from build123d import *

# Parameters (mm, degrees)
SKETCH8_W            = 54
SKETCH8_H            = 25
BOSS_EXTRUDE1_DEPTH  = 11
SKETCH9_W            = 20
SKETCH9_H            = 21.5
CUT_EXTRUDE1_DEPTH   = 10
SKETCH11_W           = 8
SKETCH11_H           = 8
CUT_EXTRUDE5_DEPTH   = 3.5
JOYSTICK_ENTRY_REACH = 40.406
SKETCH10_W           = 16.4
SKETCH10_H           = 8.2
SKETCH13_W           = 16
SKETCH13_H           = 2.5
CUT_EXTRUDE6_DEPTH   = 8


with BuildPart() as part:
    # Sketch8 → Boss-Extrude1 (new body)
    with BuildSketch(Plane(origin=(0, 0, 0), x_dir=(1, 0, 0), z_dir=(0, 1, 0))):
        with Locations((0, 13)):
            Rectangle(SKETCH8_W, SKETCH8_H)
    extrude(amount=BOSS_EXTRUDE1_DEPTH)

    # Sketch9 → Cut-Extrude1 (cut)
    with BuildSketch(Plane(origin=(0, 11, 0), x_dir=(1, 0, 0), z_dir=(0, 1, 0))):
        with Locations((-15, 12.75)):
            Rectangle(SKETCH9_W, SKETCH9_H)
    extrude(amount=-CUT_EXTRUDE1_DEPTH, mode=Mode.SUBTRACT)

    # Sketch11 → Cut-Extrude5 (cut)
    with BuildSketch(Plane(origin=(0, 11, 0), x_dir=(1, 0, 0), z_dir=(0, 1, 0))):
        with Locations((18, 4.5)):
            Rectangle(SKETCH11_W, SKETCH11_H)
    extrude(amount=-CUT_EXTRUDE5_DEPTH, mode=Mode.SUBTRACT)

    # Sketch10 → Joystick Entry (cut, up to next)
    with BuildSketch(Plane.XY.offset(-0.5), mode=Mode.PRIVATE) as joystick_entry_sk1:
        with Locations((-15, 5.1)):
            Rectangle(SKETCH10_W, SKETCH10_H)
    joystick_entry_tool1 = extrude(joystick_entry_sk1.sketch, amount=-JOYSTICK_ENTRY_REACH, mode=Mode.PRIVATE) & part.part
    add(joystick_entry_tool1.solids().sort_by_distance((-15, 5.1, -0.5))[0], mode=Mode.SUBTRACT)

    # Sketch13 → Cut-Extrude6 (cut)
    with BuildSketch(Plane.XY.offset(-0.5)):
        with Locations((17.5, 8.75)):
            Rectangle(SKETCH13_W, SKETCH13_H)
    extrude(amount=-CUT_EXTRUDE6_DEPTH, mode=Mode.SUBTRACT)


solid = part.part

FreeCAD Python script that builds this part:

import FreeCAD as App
import Part
import Sketcher
from FreeCAD import Vector


def add_polygon(sketch, points):
    """Adds a closed chain of lines whose ends are joined by coincident constraints."""
    first, n = sketch.GeometryCount, len(points)
    for a, b in zip(points, points[1:] + points[:1]):
        sketch.addGeometry(Part.LineSegment(App.Vector(*a, 0), App.Vector(*b, 0)), False)
    for i in range(n):
        sketch.addConstraint(Sketcher.Constraint("Coincident", first + i, 2, first + (i + 1) % n, 1))

doc = App.newDocument("Part")
body = doc.addObject("PartDesign::Body", "Body")

# Sketch on XZ plane
sketch1 = body.newObject("Sketcher::SketchObject", "Sketch")
sketch1.AttachmentSupport = (doc.getObject("XZ_Plane"), [""])
sketch1.MapMode = "FlatFace"
add_polygon(sketch1, [(-27, -26), (-27, 0), (27, 0), (27, -26)])  # lines 0-3
sketch1.addConstraint([
    Sketcher.Constraint("Vertical", 0),
    Sketcher.Constraint("Horizontal", 1),
    Sketcher.Constraint("Vertical", 2),
    Sketcher.Constraint("Horizontal", 3),
    Sketcher.Constraint("DistanceX", 1, 1, 1, 2, 54.0),
    Sketcher.Constraint("DistanceY", 0, 1, 0, 2, 25.0),
    Sketcher.Constraint("DistanceX", 0, 2, -1, 1, 27.0),
    Sketcher.Constraint("DistanceY", 0, 2, -1, 1, 0.5),
])
pad1 = body.newObject("PartDesign::Pad", "Pad")
pad1.Profile = sketch1
pad1.Length = 11
pad1.Reversed = True

# Sketch on XZ plane
sketch2 = body.newObject("Sketcher::SketchObject", "Sketch001")
sketch2.AttachmentSupport = (doc.getObject("XZ_Plane"), [""])
sketch2.MapMode = "FlatFace"
sketch2.AttachmentOffset = App.Placement(Vector(0, 0, -11), App.Rotation())
add_polygon(sketch2, [(-25, -24), (-25, -2), (-5, -2), (-5, -24)])  # lines 0-3
sketch2.addConstraint([
    Sketcher.Constraint("Vertical", 0),
    Sketcher.Constraint("Horizontal", 1),
    Sketcher.Constraint("Vertical", 2),
    Sketcher.Constraint("Horizontal", 3),
    Sketcher.Constraint("DistanceX", 1, 1, 1, 2, 20.0),
    Sketcher.Constraint("DistanceY", 0, 1, 0, 2, 21.5),
    Sketcher.Constraint("DistanceX", 0, 2, -1, 1, 25.0),
    Sketcher.Constraint("DistanceY", 0, 2, -1, 1, 2.0),
])
pocket1 = body.newObject("PartDesign::Pocket", "Pocket")
pocket1.Profile = sketch2
pocket1.Length = 10
pocket1.Reversed = True

# Sketch on XZ plane
sketch3 = body.newObject("Sketcher::SketchObject", "Sketch002")
sketch3.AttachmentSupport = (doc.getObject("XZ_Plane"), [""])
sketch3.MapMode = "FlatFace"
sketch3.AttachmentOffset = App.Placement(Vector(0, 0, -11), App.Rotation())
add_polygon(sketch3, [(14, -8), (14, 0), (22, 0), (22, -8)])  # lines 0-3
sketch3.addConstraint([
    Sketcher.Constraint("Vertical", 0),
    Sketcher.Constraint("Horizontal", 1),
    Sketcher.Constraint("Vertical", 2),
    Sketcher.Constraint("Horizontal", 3),
    Sketcher.Constraint("Equal", 3, 0),
    Sketcher.Constraint("DistanceX", 1, 1, 1, 2, 8.0),
    Sketcher.Constraint("DistanceX", -1, 1, 0, 2, 14.0),
    Sketcher.Constraint("DistanceY", 0, 2, -1, 1, 0.5),
])
pocket2 = body.newObject("PartDesign::Pocket", "Pocket001")
pocket2.Profile = sketch3
pocket2.Length = 3.5
pocket2.Reversed = True

# Sketch on XY plane
sketch4 = body.newObject("Sketcher::SketchObject", "Sketch003")
sketch4.AttachmentSupport = (doc.getObject("XY_Plane"), [""])
sketch4.MapMode = "FlatFace"
sketch4.AttachmentOffset = App.Placement(Vector(0, 0, -0.5), App.Rotation())
add_polygon(sketch4, [(-23, 9), (-23, 1), (-7, 1), (-7, 9)])  # lines 0-3
sketch4.addConstraint([
    Sketcher.Constraint("Vertical", 0),
    Sketcher.Constraint("Horizontal", 1),
    Sketcher.Constraint("Vertical", 2),
    Sketcher.Constraint("Horizontal", 3),
    Sketcher.Constraint("DistanceX", 1, 1, 1, 2, 16.4),
    Sketcher.Constraint("DistanceY", 0, 2, 0, 1, 8.2),
    Sketcher.Constraint("DistanceY", -1, 1, 0, 2, 1.0),
    Sketcher.Constraint("DistanceX", 0, 2, -1, 1, 23.2),
])
pocket3 = body.newObject("PartDesign::Pocket", "Pocket002")
pocket3.Profile = sketch4
pocket3.Type = "UpToFirst"

# Sketch on XY plane
sketch5 = body.newObject("Sketcher::SketchObject", "Sketch004")
sketch5.AttachmentSupport = (doc.getObject("XY_Plane"), [""])
sketch5.MapMode = "FlatFace"
sketch5.AttachmentOffset = App.Placement(Vector(0, 0, -0.5), App.Rotation())
add_polygon(sketch5, [(9.5, 10), (9.5, 7.5), (25.5, 7.5), (25.5, 10)])  # lines 0-3
sketch5.addConstraint([
    Sketcher.Constraint("Vertical", 0),
    Sketcher.Constraint("Horizontal", 1),
    Sketcher.Constraint("Vertical", 2),
    Sketcher.Constraint("Horizontal", 3),
    Sketcher.Constraint("DistanceX", 1, 1, 1, 2, 16.0),
    Sketcher.Constraint("DistanceY", 0, 2, 0, 1, 2.5),
    Sketcher.Constraint("DistanceY", -1, 1, 2, 2, 10.0),
    Sketcher.Constraint("DistanceX", -1, 1, 0, 2, 9.5),
])
pocket4 = body.newObject("PartDesign::Pocket", "Pocket003")
pocket4.Profile = sketch5
pocket4.Length = 8

doc.recompute()
